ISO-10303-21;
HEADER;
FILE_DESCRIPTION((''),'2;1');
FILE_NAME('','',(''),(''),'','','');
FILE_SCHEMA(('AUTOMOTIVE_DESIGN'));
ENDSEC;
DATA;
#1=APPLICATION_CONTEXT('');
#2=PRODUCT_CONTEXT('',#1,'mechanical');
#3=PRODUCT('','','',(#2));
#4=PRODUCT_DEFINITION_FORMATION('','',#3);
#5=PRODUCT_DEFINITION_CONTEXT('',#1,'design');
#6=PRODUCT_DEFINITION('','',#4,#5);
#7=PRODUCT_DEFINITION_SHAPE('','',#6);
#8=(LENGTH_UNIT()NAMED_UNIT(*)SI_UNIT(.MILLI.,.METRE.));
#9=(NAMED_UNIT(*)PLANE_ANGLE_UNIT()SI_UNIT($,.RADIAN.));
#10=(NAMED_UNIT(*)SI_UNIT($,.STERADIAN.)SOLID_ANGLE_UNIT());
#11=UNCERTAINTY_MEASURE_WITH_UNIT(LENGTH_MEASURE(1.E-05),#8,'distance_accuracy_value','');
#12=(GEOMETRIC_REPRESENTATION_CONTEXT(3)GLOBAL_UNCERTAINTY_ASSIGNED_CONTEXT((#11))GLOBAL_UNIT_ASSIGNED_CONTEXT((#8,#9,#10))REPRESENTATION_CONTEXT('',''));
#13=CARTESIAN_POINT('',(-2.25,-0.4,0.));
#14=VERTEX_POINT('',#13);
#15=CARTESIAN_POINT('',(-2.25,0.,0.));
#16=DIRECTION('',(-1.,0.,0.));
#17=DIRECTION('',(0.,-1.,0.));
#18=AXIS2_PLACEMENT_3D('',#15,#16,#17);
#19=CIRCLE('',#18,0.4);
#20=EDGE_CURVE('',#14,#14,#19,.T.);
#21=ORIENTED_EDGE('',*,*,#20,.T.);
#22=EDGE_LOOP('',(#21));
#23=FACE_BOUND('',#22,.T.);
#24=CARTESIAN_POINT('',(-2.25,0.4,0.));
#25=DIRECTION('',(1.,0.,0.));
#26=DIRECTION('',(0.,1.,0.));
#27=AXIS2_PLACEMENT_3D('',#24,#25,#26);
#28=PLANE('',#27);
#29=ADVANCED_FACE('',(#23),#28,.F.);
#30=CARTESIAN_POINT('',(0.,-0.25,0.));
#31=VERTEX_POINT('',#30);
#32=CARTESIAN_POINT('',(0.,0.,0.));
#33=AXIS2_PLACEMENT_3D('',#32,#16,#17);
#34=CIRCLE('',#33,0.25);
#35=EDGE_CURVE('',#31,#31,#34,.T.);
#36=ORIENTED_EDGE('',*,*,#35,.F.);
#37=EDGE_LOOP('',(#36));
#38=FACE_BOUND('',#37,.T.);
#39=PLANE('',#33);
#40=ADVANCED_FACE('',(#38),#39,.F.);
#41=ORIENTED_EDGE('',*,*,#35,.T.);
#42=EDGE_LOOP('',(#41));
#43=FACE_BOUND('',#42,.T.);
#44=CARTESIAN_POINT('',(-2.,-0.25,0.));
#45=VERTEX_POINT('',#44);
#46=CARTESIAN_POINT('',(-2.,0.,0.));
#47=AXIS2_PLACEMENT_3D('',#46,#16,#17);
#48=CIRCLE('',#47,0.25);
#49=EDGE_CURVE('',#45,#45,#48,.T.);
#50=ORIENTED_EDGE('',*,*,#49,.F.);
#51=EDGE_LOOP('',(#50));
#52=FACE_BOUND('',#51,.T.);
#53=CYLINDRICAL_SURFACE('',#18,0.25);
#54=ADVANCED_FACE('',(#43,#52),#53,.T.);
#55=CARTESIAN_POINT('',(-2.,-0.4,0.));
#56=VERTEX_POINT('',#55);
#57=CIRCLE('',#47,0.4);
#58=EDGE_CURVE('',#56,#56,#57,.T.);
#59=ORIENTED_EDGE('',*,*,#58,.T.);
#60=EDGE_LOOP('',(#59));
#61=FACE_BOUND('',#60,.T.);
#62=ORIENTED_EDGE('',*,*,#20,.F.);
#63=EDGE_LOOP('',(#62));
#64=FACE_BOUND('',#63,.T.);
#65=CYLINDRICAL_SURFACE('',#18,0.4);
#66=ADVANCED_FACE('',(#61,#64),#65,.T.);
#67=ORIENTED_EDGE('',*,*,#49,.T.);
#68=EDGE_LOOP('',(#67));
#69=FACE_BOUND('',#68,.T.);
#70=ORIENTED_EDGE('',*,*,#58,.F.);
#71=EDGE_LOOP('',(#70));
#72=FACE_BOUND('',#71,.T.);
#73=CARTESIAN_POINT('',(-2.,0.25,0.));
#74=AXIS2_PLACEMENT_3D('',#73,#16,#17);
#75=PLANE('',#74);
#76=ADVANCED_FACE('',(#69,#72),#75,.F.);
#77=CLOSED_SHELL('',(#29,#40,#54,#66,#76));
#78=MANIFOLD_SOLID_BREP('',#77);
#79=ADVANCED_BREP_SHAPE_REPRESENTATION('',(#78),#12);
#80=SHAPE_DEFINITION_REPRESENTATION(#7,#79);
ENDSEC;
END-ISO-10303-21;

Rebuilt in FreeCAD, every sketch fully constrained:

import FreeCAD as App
import Part
import Sketcher

V = App.Vector

doc = App.newDocument("Part")
body = doc.addObject("PartDesign::Body", "Body")

# Sketch on XY plane
sketch1 = doc.addObject("Sketcher::SketchObject", "Sketch")
body.addObject(sketch1)
sketch1.AttachmentSupport = (doc.XY_Plane, [""])
sketch1.MapMode = "FlatFace"
sketch1.addGeometry([
    Part.LineSegment(V(0, 0, 0), V(0, 0.25, 0)),  # 0
    Part.LineSegment(V(0, 0.25, 0), V(-2, 0.25, 0)),  # 1
    Part.LineSegment(V(-2, 0.25, 0), V(-2, 0.4, 0)),  # 2
    Part.LineSegment(V(-2, 0.4, 0), V(-2.25, 0.4, 0)),  # 3
    Part.LineSegment(V(-2.25, 0.4, 0), V(-2.25, 0, 0)),  # 4
    Part.LineSegment(V(-2.25, 0, 0), V(0, 0, 0)),  # 5
], False)
sketch1.addConstraint([
    Sketcher.Constraint("Coincident", 0, 2, 1, 1),
    Sketcher.Constraint("Coincident", 1, 2, 2, 1),
    Sketcher.Constraint("Coincident", 2, 2, 3, 1),
    Sketcher.Constraint("Coincident", 3, 2, 4, 1),
    Sketcher.Constraint("Coincident", 4, 2, 5, 1),
    Sketcher.Constraint("Coincident", 5, 2, 0, 1),
    Sketcher.Constraint("Vertical", 0),
    Sketcher.Constraint("Horizontal", 1),
    Sketcher.Constraint("Vertical", 2),
    Sketcher.Constraint("Horizontal", 3),
    Sketcher.Constraint("Vertical", 4),
    Sketcher.Constraint("Horizontal", 5),
    Sketcher.Constraint("Coincident", 5, 2, -1, 1),
    Sketcher.Constraint("Equal", 3, 0),
    Sketcher.Constraint("DistanceX", 1, 2, 1, 1, 2.0),
    Sketcher.Constraint("DistanceY", 4, 2, 4, 1, 0.4),
    Sketcher.Constraint("DistanceX", 3, 2, 3, 1, 0.25),
])
revolution = doc.addObject("PartDesign::Revolution", "Revolution")
body.addObject(revolution)
revolution.Profile = sketch1
revolution.ReferenceAxis = (sketch1, ["H_Axis"])
revolution.Angle = 360

doc.recompute()
